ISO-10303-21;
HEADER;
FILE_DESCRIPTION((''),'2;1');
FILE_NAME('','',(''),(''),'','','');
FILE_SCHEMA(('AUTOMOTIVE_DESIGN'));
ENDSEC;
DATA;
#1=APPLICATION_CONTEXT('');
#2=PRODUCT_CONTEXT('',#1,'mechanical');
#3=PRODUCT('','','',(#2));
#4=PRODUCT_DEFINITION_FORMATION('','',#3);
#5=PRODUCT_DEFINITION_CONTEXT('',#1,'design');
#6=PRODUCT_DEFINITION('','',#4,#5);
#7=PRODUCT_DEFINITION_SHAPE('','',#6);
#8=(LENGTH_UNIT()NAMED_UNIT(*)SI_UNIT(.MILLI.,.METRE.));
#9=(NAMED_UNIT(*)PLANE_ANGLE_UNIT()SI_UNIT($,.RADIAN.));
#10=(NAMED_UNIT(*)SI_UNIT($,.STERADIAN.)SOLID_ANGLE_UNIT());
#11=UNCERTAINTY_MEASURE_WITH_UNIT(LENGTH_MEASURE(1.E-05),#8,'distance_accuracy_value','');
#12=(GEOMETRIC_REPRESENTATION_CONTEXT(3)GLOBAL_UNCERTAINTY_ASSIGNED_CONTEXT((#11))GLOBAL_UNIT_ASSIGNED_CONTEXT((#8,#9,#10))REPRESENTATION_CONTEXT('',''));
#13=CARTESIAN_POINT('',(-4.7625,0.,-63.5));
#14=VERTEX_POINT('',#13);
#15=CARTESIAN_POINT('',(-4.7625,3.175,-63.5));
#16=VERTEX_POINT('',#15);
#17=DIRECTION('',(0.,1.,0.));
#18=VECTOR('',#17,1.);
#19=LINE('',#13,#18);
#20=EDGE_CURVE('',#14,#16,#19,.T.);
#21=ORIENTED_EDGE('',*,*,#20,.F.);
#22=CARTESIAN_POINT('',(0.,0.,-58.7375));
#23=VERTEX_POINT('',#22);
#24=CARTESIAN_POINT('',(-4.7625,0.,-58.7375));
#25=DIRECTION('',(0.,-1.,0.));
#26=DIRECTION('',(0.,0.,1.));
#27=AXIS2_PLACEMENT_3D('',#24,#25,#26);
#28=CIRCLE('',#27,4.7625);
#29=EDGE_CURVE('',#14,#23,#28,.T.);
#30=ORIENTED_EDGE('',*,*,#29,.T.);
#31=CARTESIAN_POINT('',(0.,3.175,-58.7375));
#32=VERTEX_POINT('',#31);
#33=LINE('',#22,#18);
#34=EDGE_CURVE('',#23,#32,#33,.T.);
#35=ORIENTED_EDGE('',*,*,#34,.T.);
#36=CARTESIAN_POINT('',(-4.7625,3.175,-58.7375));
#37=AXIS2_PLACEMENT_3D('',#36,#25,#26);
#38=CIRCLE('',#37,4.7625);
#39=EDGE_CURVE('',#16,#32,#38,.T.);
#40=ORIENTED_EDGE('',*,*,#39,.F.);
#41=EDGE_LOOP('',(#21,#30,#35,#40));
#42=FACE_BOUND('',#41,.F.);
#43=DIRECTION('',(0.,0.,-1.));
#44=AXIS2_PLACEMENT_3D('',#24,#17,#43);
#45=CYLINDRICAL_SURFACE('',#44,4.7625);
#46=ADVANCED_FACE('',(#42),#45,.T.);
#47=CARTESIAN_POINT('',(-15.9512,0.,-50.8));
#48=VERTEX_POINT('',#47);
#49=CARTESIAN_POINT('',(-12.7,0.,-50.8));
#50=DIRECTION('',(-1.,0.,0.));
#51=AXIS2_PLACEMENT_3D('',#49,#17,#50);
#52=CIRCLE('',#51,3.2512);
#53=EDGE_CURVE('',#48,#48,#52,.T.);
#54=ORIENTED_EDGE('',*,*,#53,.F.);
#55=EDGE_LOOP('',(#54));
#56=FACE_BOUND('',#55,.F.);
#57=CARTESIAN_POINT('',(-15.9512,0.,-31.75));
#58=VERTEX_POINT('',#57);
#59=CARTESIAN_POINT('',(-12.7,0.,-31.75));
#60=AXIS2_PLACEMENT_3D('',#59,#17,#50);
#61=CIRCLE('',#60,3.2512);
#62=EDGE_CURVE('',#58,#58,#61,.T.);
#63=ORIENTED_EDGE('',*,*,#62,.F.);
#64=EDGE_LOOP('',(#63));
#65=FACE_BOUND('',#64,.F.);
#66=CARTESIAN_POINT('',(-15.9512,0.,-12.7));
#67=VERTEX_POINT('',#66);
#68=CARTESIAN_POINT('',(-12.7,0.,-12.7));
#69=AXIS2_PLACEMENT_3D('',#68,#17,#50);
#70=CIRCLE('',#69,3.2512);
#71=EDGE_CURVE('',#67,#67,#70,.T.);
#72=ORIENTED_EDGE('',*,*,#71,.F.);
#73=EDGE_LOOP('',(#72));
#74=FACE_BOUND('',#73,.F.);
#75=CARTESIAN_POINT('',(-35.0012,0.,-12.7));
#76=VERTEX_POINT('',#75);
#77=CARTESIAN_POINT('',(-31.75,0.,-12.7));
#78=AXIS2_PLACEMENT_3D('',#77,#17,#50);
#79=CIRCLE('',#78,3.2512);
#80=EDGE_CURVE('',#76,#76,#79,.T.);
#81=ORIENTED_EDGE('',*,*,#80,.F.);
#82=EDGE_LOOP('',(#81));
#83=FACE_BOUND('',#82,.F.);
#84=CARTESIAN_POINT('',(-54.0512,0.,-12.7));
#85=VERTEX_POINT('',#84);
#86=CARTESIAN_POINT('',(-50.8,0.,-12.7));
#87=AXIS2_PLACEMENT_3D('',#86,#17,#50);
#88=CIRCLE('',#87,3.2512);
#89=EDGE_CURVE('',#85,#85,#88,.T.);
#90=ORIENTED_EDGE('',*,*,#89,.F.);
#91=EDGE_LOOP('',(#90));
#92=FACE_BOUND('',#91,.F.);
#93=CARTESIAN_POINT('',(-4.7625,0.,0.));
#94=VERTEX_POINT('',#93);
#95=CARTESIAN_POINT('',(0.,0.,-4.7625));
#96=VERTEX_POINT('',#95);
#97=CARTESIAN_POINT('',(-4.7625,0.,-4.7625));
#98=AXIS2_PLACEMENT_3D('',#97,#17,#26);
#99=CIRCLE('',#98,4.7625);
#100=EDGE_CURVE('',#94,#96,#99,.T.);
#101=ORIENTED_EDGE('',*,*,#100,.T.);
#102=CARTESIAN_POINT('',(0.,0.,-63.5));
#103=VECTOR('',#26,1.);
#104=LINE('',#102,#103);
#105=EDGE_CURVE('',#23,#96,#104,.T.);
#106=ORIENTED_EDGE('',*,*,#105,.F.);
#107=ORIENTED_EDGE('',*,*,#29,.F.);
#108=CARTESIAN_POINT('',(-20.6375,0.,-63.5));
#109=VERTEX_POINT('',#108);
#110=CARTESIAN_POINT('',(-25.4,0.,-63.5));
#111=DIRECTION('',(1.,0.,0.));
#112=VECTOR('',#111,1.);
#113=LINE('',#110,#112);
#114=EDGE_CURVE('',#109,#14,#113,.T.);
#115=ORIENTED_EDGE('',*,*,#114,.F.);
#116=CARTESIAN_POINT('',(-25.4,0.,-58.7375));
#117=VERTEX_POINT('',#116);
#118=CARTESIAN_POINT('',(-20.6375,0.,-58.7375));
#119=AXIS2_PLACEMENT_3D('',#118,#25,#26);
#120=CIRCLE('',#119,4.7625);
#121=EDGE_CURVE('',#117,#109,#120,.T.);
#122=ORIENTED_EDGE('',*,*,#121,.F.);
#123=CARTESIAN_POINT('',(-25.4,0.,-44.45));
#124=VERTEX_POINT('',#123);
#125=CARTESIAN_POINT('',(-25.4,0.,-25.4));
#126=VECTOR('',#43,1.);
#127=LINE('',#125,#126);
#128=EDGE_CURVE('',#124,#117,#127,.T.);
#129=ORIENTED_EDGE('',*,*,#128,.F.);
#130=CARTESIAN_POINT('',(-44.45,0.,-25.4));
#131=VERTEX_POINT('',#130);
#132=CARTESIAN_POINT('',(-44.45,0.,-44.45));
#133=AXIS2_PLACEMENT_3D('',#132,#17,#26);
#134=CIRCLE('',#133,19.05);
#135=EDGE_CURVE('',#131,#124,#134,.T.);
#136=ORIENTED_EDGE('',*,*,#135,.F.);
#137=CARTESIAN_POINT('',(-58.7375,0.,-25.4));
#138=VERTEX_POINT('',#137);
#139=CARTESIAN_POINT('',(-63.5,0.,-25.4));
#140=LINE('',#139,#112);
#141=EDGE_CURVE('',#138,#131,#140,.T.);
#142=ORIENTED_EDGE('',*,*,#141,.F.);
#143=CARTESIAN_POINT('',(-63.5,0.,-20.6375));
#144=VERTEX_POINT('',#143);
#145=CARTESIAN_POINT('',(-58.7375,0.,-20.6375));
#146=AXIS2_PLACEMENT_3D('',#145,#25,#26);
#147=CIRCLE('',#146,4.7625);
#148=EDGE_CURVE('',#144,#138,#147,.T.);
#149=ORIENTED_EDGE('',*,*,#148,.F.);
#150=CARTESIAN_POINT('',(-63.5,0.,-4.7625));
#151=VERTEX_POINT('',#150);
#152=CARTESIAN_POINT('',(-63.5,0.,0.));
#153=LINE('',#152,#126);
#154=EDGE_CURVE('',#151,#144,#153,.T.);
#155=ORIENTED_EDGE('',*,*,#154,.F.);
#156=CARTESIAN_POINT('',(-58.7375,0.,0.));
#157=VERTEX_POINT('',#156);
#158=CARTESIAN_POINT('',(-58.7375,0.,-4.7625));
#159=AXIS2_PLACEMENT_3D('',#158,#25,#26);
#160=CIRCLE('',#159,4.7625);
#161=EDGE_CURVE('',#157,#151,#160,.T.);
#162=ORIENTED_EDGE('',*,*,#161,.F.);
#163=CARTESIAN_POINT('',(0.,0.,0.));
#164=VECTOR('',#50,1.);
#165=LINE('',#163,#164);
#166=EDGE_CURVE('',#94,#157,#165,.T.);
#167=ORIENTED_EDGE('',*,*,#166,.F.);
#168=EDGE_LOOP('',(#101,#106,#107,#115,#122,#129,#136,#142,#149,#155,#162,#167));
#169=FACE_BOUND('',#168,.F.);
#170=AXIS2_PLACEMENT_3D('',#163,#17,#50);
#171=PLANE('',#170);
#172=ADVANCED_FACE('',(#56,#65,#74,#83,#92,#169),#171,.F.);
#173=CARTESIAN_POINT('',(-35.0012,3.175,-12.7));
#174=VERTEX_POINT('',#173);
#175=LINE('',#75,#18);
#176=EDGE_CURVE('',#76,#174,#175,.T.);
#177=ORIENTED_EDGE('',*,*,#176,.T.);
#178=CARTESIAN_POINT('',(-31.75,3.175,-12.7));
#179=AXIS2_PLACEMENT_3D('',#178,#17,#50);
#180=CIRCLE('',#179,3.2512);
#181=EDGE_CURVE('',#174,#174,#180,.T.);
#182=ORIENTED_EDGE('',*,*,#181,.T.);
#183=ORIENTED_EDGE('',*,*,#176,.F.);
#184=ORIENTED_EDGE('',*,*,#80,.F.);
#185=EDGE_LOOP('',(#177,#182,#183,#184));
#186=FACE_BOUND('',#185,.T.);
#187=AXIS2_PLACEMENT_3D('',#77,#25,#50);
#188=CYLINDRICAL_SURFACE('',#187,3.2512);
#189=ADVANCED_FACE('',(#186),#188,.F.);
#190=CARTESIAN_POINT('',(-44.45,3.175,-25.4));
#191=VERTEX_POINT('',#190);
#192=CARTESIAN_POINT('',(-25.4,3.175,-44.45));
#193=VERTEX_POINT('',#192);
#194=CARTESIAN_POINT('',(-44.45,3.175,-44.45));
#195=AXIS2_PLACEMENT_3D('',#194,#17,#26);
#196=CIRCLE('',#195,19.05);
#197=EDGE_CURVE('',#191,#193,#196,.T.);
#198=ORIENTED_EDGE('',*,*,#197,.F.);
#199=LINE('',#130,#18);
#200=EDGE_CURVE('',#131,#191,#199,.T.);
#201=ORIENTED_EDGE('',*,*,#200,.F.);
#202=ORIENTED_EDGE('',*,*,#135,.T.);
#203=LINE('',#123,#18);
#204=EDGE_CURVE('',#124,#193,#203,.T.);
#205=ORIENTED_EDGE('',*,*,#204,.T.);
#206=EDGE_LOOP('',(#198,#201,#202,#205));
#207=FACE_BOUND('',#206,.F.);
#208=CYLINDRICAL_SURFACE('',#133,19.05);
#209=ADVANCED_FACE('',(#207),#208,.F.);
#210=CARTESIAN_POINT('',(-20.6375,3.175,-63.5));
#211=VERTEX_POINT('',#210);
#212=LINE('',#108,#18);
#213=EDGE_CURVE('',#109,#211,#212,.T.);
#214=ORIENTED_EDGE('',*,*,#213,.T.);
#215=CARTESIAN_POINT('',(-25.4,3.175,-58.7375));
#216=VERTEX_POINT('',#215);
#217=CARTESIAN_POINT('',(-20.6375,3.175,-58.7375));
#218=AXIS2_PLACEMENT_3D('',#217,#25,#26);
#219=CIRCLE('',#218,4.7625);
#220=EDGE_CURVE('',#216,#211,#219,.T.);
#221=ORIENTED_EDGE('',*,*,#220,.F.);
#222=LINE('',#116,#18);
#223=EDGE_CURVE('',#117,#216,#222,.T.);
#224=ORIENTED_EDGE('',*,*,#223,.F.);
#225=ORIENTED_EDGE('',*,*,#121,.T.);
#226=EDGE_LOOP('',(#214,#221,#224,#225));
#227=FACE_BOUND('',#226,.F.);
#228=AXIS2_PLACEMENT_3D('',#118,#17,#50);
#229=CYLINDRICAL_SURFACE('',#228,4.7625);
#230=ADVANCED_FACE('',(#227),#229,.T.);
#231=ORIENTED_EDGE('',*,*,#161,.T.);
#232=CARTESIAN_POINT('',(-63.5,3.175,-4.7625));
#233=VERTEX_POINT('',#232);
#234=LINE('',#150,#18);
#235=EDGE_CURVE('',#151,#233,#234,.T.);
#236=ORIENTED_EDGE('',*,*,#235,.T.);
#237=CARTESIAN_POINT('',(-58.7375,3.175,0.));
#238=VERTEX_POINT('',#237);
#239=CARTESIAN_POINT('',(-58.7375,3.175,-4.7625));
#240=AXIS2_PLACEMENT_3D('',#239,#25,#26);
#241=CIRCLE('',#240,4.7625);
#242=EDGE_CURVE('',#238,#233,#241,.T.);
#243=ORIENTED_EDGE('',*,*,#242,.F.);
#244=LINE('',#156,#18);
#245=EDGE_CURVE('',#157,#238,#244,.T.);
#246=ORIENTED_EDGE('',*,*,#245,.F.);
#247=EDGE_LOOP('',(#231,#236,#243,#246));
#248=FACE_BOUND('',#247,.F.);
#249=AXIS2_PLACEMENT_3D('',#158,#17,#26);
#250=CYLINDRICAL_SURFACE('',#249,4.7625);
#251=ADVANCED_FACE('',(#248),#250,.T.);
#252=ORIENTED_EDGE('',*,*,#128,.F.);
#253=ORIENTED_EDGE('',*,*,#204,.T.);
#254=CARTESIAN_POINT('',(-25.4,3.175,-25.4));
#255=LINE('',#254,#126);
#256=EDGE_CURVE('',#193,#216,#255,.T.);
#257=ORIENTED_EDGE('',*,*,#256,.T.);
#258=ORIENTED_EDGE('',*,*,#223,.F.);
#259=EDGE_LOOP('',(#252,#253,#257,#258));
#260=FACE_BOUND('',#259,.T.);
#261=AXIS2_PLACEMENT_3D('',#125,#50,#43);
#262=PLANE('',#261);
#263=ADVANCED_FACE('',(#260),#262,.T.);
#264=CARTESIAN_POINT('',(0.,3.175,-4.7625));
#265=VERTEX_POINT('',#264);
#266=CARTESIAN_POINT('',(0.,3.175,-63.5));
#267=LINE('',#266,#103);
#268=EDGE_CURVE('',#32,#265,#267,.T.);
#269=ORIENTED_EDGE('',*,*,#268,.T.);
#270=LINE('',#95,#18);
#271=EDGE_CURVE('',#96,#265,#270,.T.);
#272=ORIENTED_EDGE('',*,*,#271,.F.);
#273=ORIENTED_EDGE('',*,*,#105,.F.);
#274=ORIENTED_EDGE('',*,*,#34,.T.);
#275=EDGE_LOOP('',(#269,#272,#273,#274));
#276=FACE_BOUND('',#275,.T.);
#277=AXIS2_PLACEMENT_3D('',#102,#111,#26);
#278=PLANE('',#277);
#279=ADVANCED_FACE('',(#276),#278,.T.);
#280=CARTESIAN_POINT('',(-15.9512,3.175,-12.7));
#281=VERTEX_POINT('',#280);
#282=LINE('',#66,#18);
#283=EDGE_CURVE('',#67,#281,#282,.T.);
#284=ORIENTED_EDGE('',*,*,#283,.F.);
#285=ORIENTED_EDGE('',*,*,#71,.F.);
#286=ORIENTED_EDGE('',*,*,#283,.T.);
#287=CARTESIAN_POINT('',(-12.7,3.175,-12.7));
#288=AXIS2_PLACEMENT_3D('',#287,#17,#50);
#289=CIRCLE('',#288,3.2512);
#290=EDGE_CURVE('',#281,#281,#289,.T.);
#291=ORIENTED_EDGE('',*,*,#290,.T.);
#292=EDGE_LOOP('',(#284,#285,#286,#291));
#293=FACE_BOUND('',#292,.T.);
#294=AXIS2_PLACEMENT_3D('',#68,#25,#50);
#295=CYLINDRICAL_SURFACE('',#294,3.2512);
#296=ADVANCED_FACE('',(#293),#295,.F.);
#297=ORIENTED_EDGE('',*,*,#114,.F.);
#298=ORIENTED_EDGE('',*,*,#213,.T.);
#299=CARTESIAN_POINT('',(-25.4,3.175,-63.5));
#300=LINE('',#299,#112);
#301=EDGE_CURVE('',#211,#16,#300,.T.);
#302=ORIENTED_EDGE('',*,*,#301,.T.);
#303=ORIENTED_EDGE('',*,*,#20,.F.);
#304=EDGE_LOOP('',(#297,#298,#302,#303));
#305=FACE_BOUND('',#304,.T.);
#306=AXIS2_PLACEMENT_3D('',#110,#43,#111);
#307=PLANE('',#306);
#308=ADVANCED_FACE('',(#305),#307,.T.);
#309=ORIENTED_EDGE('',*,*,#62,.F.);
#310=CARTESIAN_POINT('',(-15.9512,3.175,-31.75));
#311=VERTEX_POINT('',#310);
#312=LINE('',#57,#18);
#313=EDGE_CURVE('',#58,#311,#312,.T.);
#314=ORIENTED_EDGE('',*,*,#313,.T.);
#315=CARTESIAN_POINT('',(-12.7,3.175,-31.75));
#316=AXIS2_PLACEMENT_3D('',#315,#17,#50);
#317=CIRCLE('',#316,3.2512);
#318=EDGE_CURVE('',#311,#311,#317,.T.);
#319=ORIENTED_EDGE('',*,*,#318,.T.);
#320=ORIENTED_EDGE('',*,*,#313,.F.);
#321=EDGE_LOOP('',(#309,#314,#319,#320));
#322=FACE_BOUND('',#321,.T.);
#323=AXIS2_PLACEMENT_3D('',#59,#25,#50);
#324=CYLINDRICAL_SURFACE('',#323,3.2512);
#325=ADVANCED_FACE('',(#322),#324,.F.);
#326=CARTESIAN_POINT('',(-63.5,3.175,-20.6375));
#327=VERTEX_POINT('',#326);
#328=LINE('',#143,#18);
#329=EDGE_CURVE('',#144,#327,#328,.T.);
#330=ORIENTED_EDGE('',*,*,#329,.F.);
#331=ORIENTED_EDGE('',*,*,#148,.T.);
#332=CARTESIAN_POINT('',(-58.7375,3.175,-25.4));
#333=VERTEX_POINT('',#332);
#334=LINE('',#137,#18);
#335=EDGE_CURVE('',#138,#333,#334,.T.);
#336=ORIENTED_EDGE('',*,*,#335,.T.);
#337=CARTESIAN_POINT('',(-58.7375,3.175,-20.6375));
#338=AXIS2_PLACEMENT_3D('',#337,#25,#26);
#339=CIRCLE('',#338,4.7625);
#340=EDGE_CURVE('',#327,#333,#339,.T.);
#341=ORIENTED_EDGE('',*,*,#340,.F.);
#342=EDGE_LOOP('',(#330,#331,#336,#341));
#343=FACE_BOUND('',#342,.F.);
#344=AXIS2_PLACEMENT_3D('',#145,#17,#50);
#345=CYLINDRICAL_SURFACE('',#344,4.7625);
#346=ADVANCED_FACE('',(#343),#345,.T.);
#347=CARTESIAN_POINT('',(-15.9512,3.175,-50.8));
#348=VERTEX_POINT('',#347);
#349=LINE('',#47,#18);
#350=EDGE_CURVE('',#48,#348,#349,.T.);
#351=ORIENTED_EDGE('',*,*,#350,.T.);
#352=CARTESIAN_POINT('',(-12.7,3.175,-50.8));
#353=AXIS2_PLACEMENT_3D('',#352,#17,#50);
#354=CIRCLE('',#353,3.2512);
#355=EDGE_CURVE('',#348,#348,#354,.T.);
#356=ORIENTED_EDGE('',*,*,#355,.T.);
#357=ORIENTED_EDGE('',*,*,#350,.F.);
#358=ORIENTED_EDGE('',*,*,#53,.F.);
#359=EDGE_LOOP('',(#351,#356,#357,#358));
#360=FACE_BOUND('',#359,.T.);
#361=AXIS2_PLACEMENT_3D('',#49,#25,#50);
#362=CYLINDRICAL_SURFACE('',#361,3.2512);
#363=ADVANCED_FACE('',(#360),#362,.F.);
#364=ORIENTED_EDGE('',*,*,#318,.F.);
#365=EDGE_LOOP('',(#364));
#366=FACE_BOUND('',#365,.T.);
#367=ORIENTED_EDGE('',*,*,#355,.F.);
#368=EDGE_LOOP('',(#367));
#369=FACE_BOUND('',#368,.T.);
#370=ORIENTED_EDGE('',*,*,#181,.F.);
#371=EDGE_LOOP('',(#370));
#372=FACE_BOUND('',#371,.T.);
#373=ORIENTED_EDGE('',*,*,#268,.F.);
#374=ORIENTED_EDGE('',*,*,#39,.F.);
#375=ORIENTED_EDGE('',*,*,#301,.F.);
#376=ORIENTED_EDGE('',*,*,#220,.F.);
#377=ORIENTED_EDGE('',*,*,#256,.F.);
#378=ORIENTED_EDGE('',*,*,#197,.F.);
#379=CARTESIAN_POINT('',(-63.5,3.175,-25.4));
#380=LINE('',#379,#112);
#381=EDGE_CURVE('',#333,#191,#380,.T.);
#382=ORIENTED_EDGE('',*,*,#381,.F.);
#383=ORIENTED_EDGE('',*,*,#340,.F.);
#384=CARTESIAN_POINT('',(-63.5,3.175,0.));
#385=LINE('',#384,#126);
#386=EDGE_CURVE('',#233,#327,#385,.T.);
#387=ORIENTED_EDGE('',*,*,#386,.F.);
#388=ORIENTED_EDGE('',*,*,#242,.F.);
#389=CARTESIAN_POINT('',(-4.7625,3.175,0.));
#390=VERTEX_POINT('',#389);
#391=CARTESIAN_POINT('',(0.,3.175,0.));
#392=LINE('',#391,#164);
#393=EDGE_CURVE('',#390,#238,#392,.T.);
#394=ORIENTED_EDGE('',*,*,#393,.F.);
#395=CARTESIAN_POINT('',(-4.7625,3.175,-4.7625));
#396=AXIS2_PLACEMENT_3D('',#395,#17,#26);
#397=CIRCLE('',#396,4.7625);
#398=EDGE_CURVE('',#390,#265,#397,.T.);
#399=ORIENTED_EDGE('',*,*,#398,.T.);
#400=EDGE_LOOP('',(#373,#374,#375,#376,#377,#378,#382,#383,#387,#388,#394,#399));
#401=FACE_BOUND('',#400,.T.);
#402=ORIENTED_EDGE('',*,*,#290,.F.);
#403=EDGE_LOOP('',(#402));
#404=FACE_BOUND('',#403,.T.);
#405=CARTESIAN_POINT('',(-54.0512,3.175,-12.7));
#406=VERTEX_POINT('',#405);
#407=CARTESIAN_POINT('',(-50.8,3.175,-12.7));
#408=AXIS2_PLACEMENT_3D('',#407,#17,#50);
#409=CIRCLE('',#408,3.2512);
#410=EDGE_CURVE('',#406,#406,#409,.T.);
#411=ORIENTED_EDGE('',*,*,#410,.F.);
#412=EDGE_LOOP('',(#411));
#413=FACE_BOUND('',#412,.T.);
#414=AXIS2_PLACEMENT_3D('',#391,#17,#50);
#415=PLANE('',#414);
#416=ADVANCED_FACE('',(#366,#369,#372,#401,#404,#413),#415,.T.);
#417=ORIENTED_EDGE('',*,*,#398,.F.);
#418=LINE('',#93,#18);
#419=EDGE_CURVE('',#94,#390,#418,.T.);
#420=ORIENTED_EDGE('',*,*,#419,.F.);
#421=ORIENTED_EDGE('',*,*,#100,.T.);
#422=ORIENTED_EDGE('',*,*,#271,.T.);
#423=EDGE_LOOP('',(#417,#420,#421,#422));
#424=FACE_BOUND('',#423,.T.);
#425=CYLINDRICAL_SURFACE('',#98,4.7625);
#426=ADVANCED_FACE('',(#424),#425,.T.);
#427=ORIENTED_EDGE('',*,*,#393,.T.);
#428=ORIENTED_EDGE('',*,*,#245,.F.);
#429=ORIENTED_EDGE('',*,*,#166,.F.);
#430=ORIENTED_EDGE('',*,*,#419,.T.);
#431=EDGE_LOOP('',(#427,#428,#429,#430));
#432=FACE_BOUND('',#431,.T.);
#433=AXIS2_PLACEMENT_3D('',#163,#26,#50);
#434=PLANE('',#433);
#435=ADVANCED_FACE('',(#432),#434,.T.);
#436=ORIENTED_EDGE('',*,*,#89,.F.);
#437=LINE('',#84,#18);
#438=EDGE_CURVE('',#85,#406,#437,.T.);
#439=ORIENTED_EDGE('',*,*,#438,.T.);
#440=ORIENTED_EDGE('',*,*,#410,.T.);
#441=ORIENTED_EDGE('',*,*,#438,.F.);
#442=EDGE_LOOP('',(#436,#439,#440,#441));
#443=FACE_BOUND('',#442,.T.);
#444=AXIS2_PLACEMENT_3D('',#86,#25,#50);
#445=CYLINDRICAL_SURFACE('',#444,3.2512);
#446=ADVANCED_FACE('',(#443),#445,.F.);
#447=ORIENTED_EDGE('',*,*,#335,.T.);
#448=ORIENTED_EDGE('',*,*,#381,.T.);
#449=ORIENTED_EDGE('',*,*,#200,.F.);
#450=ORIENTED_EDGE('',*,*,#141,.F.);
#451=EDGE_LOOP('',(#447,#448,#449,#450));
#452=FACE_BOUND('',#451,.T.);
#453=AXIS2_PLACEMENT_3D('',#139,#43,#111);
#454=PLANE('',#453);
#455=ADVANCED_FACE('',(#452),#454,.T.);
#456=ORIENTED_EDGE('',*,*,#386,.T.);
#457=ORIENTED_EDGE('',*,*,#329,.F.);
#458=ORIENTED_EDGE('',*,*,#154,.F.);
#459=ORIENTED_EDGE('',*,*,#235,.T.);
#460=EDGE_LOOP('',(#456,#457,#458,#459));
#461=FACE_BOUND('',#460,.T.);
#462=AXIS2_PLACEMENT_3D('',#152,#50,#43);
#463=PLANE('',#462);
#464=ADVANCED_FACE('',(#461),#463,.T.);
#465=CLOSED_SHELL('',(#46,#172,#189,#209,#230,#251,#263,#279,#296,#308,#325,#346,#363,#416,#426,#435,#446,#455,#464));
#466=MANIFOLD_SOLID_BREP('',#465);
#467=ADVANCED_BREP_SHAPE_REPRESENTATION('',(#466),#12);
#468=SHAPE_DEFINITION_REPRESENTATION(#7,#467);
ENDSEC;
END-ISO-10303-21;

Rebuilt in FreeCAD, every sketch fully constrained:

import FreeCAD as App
import Part
import Sketcher
Q = App.Units.Quantity


def edges_at(feature, points):
    """Names of the edges that pass closest to the given points."""
    edges = feature.Shape.Edges
    near = lambda p: min(range(len(edges)), key=lambda i: edges[i].distToShape(Part.Vertex(*p))[0])
    return sorted({f"Edge{near(p) + 1}" for p in points})


def add_polygon(sketch, points):
    """Adds a closed chain of lines whose ends are joined by coincident constraints."""
    first, n = sketch.GeometryCount, len(points)
    for a, b in zip(points, points[1:] + points[:1]):
        sketch.addGeometry(Part.LineSegment(App.Vector(*a, 0), App.Vector(*b, 0)), False)
    for i in range(n):
        sketch.addConstraint(Sketcher.Constraint("Coincident", first + i, 2, first + (i + 1) % n, 1))

doc = App.newDocument("Part")
params = doc.addObject("Spreadsheet::Sheet", "Params")
for row, (alias, value) in enumerate([
    ("sketch1_width", "1 in"),
    ("sketch1_diameter", "0.256 in"),
    ("pad1_length", "0.125 in"),
    ("fillet_radius", "0.1875 in"),
    ("fillet2_radius", "0.75 in"),
], start=1):
    params.set(f"A{row}", alias)
    params.set(f"B{row}", "=" + value)
    params.setAlias(f"B{row}", alias)

body = doc.addObject("PartDesign::Body", "Body")

sketch1 = body.newObject("Sketcher::SketchObject", "Sketch")
sketch1.AttachmentSupport = (doc.getObject("XZ_Plane"), [""])
sketch1.MapMode = "FlatFace"
add_polygon(sketch1, [(-63.5, 0), (0, 0), (0, -63.5), (-25.4, -63.5), (-25.4, -25.4), (-63.5, -25.4)])
sketch1.addGeometry(Part.Circle(App.Vector(-12.7, -50.8, 0), App.Vector(0, 0, 1), 3.3), False)
sketch1.addGeometry(Part.Circle(App.Vector(-12.7, -31.8, 0), App.Vector(0, 0, 1), 3.3), False)
sketch1.addGeometry(Part.Circle(App.Vector(-12.7, -12.7, 0), App.Vector(0, 0, 1), 3.3), False)
sketch1.addGeometry(Part.Circle(App.Vector(-31.8, -12.7, 0), App.Vector(0, 0, 1), 3.3), False)
sketch1.addGeometry(Part.Circle(App.Vector(-50.8, -12.7, 0), App.Vector(0, 0, 1), 3.3), False)
sketch1.addConstraint([
    Sketcher.Constraint("Horizontal", 0),
    Sketcher.Constraint("Vertical", 1),
    Sketcher.Constraint("Horizontal", 2),
    Sketcher.Constraint("Vertical", 3),
    Sketcher.Constraint("Horizontal", 4),
    Sketcher.Constraint("Vertical", 5),
    Sketcher.Constraint("Coincident", 0, 2, -1, 1),
    Sketcher.Constraint("Equal", 6, 7),
    Sketcher.Constraint("Equal", 7, 8),
    Sketcher.Constraint("Equal", 8, 9),
    Sketcher.Constraint("Equal", 9, 10),
    Sketcher.Constraint("Horizontal", 8, 3, 9, 3),
    Sketcher.Constraint("Horizontal", 9, 3, 10, 3),
    Sketcher.Constraint("Vertical", 6, 3, 7, 3),
    Sketcher.Constraint("Vertical", 7, 3, 8, 3),
    Sketcher.Constraint("Equal", 0, 1),
    Sketcher.Constraint("Equal", 4, 3),
    Sketcher.Constraint("DistanceX", 2, 2, 2, 1, Q("1 in")),
    Sketcher.Constraint("Diameter", 6, Q("0.256 in")),
    Sketcher.Constraint("DistanceY", 6, 3, 3, 2, Q("1 in")),
    Sketcher.Constraint("DistanceX", 10, 3, 3, 2, Q("1 in")),
    Sketcher.Constraint("DistanceX", 6, 3, -1, 1, Q("0.5 in")),
    Sketcher.Constraint("DistanceY", 8, 3, -1, 1, Q("0.5 in")),
    Sketcher.Constraint("DistanceY", 1, 2, 6, 3, Q("0.5 in")),
    Sketcher.Constraint("DistanceY", 6, 3, 7, 3, Q("0.75 in")),
    Sketcher.Constraint("DistanceX", 9, 3, 8, 3, Q("0.75 in")),
])
sketch1.setExpression("Constraints[23]", "Params.sketch1_width")
sketch1.setExpression("Constraints[24]", "Params.sketch1_diameter")
pad1 = body.newObject("PartDesign::Pad", "Pad")
pad1.Profile = sketch1
pad1.setExpression("Length", "Params.pad1_length")
pad1.Reversed = True
doc.recompute()

fillet = body.newObject("PartDesign::Fillet", "Fillet")
fillet.Base = (pad1, edges_at(pad1, [
    (0, 1.587, 0),
    (-63.5, 1.587, 0),
    (-63.5, 1.587, -25.4),
    (0, 1.587, -63.5),
    (-25.4, 1.587, -63.5),
]))
fillet.setExpression("Radius", "Params.fillet_radius")
doc.recompute()

fillet2 = body.newObject("PartDesign::Fillet", "Fillet001")
fillet2.Base = (fillet, edges_at(fillet, [(-25.4, 1.587, -25.4)]))
fillet2.setExpression("Radius", "Params.fillet2_radius")

doc.recompute()
